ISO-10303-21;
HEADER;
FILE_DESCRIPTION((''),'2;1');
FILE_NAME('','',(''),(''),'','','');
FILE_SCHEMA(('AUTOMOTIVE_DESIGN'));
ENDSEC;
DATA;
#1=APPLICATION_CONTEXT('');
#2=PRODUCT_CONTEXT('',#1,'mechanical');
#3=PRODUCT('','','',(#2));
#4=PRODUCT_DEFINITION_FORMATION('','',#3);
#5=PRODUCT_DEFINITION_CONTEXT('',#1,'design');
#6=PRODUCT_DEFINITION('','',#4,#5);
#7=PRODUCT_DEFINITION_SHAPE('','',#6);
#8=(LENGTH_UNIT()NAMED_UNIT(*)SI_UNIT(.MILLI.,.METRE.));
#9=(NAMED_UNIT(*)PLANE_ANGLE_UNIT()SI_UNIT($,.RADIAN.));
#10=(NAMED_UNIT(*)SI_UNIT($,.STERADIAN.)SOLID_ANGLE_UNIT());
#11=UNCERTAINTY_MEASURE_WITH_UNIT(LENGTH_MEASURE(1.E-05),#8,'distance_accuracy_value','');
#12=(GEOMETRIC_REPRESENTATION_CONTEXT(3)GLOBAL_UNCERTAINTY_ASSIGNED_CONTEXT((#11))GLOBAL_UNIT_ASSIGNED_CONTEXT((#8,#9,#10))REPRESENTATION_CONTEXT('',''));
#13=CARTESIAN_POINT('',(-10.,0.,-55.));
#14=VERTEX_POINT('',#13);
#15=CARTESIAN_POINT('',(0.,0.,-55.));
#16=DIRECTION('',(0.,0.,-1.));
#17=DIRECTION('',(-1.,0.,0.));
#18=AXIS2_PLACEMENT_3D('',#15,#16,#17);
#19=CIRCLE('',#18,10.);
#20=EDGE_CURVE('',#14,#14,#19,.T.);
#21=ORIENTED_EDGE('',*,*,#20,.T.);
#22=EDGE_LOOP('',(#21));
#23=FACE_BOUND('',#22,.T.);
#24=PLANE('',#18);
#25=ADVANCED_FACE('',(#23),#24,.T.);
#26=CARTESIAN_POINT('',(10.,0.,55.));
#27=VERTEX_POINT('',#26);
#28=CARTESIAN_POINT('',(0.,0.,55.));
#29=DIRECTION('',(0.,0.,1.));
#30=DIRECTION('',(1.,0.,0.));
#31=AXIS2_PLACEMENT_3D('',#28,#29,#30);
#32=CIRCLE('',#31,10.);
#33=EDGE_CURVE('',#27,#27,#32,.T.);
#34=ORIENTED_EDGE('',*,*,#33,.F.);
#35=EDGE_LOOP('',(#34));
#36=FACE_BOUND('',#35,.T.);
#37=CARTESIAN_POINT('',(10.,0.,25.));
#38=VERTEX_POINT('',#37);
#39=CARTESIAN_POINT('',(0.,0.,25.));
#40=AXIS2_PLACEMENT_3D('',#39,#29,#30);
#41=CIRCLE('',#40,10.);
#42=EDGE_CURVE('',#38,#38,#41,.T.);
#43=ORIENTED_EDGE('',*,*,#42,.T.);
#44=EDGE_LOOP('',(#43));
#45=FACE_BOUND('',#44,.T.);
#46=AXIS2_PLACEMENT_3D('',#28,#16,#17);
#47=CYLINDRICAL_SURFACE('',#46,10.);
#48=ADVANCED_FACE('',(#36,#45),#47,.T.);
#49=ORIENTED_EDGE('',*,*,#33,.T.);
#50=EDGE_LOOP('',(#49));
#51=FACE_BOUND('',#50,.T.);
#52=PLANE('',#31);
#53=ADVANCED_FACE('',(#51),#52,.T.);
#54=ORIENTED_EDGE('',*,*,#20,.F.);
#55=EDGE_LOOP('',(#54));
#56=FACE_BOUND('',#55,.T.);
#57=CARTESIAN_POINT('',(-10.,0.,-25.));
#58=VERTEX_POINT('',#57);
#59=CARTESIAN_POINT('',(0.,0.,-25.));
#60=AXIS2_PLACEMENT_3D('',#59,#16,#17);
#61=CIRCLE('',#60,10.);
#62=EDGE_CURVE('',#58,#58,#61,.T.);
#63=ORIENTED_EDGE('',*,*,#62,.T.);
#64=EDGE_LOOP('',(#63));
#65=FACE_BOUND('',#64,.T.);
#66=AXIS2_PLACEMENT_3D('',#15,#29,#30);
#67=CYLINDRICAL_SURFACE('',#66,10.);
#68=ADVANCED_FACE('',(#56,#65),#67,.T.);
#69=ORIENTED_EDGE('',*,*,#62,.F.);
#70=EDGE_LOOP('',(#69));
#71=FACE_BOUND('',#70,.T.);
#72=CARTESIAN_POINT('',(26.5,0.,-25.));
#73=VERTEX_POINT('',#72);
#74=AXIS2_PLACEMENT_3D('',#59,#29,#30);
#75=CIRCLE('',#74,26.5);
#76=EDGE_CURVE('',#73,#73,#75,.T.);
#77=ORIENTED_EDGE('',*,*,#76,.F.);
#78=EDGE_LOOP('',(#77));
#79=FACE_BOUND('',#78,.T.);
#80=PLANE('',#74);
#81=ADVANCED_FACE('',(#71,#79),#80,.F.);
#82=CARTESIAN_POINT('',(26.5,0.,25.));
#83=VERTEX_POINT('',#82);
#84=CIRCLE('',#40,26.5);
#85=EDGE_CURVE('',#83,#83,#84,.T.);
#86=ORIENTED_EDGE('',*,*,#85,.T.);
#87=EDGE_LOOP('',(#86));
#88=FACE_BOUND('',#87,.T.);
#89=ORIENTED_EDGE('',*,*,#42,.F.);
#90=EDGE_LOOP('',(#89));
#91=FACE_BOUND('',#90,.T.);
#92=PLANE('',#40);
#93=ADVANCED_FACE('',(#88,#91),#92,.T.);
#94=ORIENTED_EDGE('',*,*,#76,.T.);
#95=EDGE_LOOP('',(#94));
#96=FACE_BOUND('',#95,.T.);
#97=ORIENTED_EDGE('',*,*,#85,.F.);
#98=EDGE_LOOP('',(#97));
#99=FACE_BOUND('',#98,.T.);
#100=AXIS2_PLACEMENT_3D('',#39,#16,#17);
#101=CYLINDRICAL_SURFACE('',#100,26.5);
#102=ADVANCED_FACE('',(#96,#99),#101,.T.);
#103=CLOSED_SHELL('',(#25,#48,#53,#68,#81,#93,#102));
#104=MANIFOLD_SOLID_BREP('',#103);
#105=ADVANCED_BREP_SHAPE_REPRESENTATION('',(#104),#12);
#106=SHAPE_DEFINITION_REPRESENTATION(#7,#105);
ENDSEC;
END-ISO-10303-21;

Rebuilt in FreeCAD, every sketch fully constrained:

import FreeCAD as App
import Part
import Sketcher
from FreeCAD import Vector

doc = App.newDocument("Part")
params = doc.addObject("Spreadsheet::Sheet", "Params")
for row, (alias, value) in enumerate([
    ("sketch1_diameter", "53 mm"),
    ("pad1_length", "50 mm"),
    ("sketch2_diameter", "20 mm"),
    ("pad2_length", "30 mm"),
    ("sketch3_diameter", "20 mm"),
    ("pad3_length", "30 mm"),
], start=1):
    params.set(f"A{row}", alias)
    params.set(f"B{row}", "=" + value)
    params.setAlias(f"B{row}", alias)

body = doc.addObject("PartDesign::Body", "Body")

# Sketch on XY plane
sketch1 = body.newObject("Sketcher::SketchObject", "Sketch")
sketch1.AttachmentSupport = (doc.getObject("XY_Plane"), [""])
sketch1.MapMode = "FlatFace"
sketch1.addGeometry(Part.Circle(Vector(0, 0, 0), Vector(0, 0, 1), 26), False)
sketch1.addConstraint([
    Sketcher.Constraint("Coincident", 0, 3, -1, 1),
    Sketcher.Constraint("Diameter", 0, 53.0),
])
sketch1.setExpression("Constraints[1]", "Params.sketch1_diameter")
pad1 = body.newObject("PartDesign::Pad", "Pad")
pad1.Profile = sketch1
pad1.setExpression("Length", "Params.pad1_length")
pad1.Midplane = True

# Sketch on XY plane
sketch2 = body.newObject("Sketcher::SketchObject", "Sketch001")
sketch2.AttachmentSupport = (doc.getObject("XY_Plane"), [""])
sketch2.MapMode = "FlatFace"
sketch2.AttachmentOffset = App.Placement(Vector(0, 0, -25), App.Rotation())
sketch2.addGeometry(Part.Circle(Vector(0, 0, 0), Vector(0, 0, 1), 10), False)
sketch2.addConstraint([
    Sketcher.Constraint("Coincident", 0, 3, -1, 1),
    Sketcher.Constraint("Diameter", 0, 20.0),
])
sketch2.setExpression("Constraints[1]", "Params.sketch2_diameter")
pad2 = body.newObject("PartDesign::Pad", "Pad001")
pad2.Profile = sketch2
pad2.setExpression("Length", "Params.pad2_length")
pad2.Reversed = True

# Sketch on XY plane
sketch3 = body.newObject("Sketcher::SketchObject", "Sketch002")
sketch3.AttachmentSupport = (doc.getObject("XY_Plane"), [""])
sketch3.MapMode = "FlatFace"
sketch3.AttachmentOffset = App.Placement(Vector(0, 0, 55), App.Rotation())
sketch3.addGeometry(Part.Circle(Vector(0, 0, 0), Vector(0, 0, 1), 10), False)
sketch3.addConstraint([
    Sketcher.Constraint("Coincident", 0, 3, -1, 1),
    Sketcher.Constraint("Diameter", 0, 20.0),
])
sketch3.setExpression("Constraints[1]", "Params.sketch3_diameter")
pad3 = body.newObject("PartDesign::Pad", "Pad002")
pad3.Profile = sketch3
pad3.setExpression("Length", "Params.pad3_length")
pad3.Reversed = True

doc.recompute()
